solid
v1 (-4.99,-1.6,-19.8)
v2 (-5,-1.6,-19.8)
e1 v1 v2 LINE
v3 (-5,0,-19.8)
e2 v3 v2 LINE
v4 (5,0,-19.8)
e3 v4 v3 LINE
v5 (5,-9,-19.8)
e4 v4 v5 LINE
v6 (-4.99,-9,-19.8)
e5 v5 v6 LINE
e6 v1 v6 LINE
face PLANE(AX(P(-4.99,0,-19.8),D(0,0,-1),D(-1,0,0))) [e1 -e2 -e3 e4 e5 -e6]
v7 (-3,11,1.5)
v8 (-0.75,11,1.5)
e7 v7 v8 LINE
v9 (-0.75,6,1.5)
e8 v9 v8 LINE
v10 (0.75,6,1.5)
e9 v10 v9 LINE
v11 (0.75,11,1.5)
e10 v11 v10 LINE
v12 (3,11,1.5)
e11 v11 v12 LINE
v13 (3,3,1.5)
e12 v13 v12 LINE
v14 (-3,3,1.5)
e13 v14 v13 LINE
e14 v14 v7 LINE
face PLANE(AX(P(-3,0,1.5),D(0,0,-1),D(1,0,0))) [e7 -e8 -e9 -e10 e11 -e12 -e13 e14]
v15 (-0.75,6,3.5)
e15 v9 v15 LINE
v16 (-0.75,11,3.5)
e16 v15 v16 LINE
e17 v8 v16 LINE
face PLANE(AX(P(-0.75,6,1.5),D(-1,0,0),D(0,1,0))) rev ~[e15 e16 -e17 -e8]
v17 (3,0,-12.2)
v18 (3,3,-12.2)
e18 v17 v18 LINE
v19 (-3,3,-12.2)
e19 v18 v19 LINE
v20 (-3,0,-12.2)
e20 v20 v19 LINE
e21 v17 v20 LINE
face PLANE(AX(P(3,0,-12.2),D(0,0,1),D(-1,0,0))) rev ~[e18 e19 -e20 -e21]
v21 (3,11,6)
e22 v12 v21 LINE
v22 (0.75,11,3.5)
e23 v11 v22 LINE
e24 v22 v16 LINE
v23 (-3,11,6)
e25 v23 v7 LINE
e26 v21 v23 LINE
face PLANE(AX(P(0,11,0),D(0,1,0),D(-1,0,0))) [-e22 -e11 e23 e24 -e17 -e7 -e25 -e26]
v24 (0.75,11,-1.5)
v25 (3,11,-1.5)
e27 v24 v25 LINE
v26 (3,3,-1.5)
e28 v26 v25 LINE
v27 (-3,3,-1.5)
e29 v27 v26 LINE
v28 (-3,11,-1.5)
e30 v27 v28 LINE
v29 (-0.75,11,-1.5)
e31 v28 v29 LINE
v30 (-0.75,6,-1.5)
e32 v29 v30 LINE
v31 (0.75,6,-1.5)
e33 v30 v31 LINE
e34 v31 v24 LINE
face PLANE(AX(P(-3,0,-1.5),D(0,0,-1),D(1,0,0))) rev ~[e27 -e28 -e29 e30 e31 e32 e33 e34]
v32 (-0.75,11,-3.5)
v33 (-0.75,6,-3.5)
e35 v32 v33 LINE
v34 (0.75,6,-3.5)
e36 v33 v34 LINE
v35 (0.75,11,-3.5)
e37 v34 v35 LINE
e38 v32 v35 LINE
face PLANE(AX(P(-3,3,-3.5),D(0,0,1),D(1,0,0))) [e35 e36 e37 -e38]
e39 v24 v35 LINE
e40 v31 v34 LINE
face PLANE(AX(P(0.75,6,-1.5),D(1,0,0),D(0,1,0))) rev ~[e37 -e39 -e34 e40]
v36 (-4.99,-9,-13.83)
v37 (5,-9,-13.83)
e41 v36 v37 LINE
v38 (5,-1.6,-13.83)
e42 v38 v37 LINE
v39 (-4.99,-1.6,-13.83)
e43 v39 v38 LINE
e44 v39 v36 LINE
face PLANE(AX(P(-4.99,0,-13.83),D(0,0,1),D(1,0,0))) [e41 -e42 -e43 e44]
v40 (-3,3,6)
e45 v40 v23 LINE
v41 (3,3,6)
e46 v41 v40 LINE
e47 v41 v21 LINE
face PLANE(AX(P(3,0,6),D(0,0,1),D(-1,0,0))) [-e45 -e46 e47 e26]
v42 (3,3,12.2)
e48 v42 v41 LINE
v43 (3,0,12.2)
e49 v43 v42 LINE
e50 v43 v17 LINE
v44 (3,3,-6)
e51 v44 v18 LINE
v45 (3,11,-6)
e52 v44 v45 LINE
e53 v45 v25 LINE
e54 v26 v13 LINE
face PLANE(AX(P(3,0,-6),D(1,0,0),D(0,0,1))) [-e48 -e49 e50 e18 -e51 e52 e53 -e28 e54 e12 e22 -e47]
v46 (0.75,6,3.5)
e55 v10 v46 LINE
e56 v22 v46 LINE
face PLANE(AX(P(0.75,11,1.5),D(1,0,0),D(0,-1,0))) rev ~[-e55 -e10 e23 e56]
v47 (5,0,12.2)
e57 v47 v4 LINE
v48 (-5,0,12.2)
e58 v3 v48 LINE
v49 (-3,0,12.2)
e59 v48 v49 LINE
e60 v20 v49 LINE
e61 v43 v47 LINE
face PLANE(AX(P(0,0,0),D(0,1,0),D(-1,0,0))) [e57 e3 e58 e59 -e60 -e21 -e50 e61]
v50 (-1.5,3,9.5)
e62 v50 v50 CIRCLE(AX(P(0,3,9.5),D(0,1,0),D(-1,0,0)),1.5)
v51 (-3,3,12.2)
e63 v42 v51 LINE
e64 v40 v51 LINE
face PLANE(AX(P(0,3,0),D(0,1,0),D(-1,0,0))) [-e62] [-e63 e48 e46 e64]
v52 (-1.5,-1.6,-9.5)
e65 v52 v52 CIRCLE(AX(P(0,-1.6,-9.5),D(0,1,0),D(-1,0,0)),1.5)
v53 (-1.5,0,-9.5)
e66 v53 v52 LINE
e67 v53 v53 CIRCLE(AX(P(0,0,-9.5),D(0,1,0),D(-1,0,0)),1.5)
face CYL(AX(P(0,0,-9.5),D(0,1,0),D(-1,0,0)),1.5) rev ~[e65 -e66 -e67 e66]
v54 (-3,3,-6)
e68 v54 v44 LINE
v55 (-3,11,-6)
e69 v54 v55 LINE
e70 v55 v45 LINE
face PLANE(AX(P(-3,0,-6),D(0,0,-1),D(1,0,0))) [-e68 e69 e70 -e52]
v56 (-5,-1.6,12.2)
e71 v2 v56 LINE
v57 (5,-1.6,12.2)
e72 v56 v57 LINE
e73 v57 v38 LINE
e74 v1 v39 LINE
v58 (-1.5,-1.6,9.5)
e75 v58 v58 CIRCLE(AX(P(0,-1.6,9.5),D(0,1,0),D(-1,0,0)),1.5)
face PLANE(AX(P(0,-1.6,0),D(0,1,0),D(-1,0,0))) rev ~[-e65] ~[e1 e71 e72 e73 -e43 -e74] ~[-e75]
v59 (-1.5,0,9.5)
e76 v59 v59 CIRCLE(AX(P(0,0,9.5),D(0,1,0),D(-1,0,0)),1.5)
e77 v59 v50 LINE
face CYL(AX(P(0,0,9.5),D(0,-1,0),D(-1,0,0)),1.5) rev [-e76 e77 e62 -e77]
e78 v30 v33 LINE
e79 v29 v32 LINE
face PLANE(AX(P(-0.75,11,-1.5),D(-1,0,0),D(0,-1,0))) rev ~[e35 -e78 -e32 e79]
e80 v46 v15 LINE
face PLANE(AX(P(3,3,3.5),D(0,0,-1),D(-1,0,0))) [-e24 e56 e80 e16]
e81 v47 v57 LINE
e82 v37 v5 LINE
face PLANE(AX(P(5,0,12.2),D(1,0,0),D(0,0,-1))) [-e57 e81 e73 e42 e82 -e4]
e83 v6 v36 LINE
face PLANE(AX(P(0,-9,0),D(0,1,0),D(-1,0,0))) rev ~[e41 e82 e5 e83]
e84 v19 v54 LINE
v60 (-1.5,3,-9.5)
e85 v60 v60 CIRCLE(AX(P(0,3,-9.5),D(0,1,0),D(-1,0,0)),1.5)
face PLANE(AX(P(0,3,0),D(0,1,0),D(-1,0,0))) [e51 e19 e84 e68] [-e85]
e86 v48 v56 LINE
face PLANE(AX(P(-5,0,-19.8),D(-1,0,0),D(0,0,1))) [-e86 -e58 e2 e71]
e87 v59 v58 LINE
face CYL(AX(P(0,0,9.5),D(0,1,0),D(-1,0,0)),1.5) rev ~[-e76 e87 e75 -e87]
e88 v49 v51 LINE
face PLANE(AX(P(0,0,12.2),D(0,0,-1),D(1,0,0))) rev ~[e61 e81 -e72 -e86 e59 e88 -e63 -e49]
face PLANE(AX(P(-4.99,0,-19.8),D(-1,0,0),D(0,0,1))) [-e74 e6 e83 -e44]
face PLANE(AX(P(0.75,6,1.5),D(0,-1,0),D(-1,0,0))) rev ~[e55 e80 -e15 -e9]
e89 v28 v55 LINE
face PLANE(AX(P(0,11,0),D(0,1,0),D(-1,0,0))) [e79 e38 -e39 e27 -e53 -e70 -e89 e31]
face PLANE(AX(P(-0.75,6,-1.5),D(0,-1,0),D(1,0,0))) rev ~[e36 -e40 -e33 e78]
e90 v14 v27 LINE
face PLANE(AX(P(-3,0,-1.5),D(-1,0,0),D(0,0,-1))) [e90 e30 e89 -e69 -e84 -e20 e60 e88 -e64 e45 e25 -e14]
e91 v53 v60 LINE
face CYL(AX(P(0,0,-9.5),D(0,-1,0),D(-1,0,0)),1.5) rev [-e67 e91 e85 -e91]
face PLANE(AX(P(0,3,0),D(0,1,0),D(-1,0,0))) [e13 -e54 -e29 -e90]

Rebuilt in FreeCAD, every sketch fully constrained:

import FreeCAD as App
import Part
import Sketcher

V = App.Vector

doc = App.newDocument("Part")
body = doc.addObject("PartDesign::Body", "Body")

# Sketch on XZ plane
sketch1 = doc.addObject("Sketcher::SketchObject", "Sketch")
body.addObject(sketch1)
sketch1.AttachmentSupport = (doc.XZ_Plane, [""])
sketch1.MapMode = "FlatFace"
sketch1.addGeometry([
    Part.LineSegment(V(5, 12.2, 0), V(5, -19.8, 0)),
    Part.LineSegment(V(5, -19.8, 0), V(-5, -19.8, 0)),
    Part.LineSegment(V(-5, -19.8, 0), V(-5, 12.2, 0)),
    Part.LineSegment(V(-5, 12.2, 0), V(5, 12.2, 0)),
], False)
sketch1.addConstraint([
    Sketcher.Constraint("Coincident", 0, 2, 1, 1),
    Sketcher.Constraint("Coincident", 1, 2, 2, 1),
    Sketcher.Constraint("Coincident", 2, 2, 3, 1),
    Sketcher.Constraint("Coincident", 3, 2, 0, 1),
    Sketcher.Constraint("Vertical", 0),
    Sketcher.Constraint("Horizontal", 1),
    Sketcher.Constraint("Vertical", 2),
    Sketcher.Constraint("Horizontal", 3),
    Sketcher.Constraint("DistanceX", 1, 2, 1, 1, 10.0),
    Sketcher.Constraint("DistanceY", 0, 2, 0, 1, 32.0),
    Sketcher.Constraint("DistanceX", -1, 1, 0, 2, 5.0),
    Sketcher.Constraint("DistanceY", 0, 2, -1, 1, 19.8),
])
pad1 = doc.addObject("PartDesign::Pad", "Pad")
body.addObject(pad1)
pad1.Profile = sketch1
pad1.Length = 1.6

# Sketch on XZ plane
sketch2 = doc.addObject("Sketcher::SketchObject", "Sketch001")
body.addObject(sketch2)
sketch2.AttachmentSupport = (doc.XZ_Plane, [""])
sketch2.MapMode = "FlatFace"
sketch2.addGeometry(Part.Circle(V(0, 9.5, 0), V(0, 0, 1), 1.5), False)
sketch2.addConstraint([
    Sketcher.Constraint("PointOnObject", 0, 3, -2),
    Sketcher.Constraint("Diameter", 0, 3.0),
    Sketcher.Constraint("DistanceY", -1, 1, 0, 3, 9.5),
])
pocket1 = doc.addObject("PartDesign::Pocket", "Pocket")
body.addObject(pocket1)
pocket1.Profile = sketch2
pocket1.Length = 10
pocket1.Midplane = True

# Sketch on XZ plane
sketch3 = doc.addObject("Sketcher::SketchObject", "Sketch002")
body.addObject(sketch3)
sketch3.AttachmentSupport = (doc.XZ_Plane, [""])
sketch3.MapMode = "FlatFace"
sketch3.addGeometry(Part.Circle(V(0, -9.5, 0), V(0, 0, 1), 1.5), False)
sketch3.addConstraint([
    Sketcher.Constraint("PointOnObject", 0, 3, -2),
    Sketcher.Constraint("Diameter", 0, 3.0),
    Sketcher.Constraint("DistanceY", 0, 3, -1, 1, 9.5),
])
pocket2 = doc.addObject("PartDesign::Pocket", "Pocket001")
body.addObject(pocket2)
pocket2.Profile = sketch3
pocket2.Length = 10
pocket2.Midplane = True

# Sketch on XZ plane
sketch4 = doc.addObject("Sketcher::SketchObject", "Sketch003")
body.addObject(sketch4)
sketch4.AttachmentSupport = (doc.XZ_Plane, [""])
sketch4.MapMode = "FlatFace"
sketch4.addGeometry([
    Part.LineSegment(V(3, 12.2, 0), V(3, 6, 0)),  # 0
    Part.LineSegment(V(3, 6, 0), V(-3, 6, 0)),  # 1
    Part.LineSegment(V(-3, 6, 0), V(-3, 12.2, 0)),  # 2
    Part.LineSegment(V(-3, 12.2, 0), V(3, 12.2, 0)),  # 3
    Part.Circle(V(0, 9.5, 0), V(0, 0, 1), 1.5),  # 4
], False)
sketch4.addConstraint([
    Sketcher.Constraint("Coincident", 0, 2, 1, 1),
    Sketcher.Constraint("Coincident", 1, 2, 2, 1),
    Sketcher.Constraint("Coincident", 2, 2, 3, 1),
    Sketcher.Constraint("Coincident", 3, 2, 0, 1),
    Sketcher.Constraint("Vertical", 0),
    Sketcher.Constraint("Horizontal", 1),
    Sketcher.Constraint("Vertical", 2),
    Sketcher.Constraint("Horizontal", 3),
    Sketcher.Constraint("PointOnObject", 4, 3, -2),
    Sketcher.Constraint("Diameter", 4, 3.0),
    Sketcher.Constraint("DistanceX", 1, 2, 1, 1, 6.0),
    Sketcher.Constraint("DistanceX", -1, 1, 0, 2, 3.0),
    Sketcher.Constraint("DistanceY", -1, 1, 0, 2, 6.0),
    Sketcher.Constraint("DistanceY", 0, 2, 4, 3, 3.5),
    Sketcher.Constraint("DistanceY", 0, 2, 0, 1, 6.2),
])
pad2 = doc.addObject("PartDesign::Pad", "Pad001")
body.addObject(pad2)
pad2.Profile = sketch4
pad2.Length = 3
pad2.Reversed = True

# Sketch on XZ plane
sketch5 = doc.addObject("Sketcher::SketchObject", "Sketch004")
body.addObject(sketch5)
sketch5.AttachmentSupport = (doc.XZ_Plane, [""])
sketch5.MapMode = "FlatFace"
sketch5.addGeometry([
    Part.LineSegment(V(-3, -6, 0), V(3, -6, 0)),  # 0
    Part.LineSegment(V(3, -6, 0), V(3, -12.2, 0)),  # 1
    Part.LineSegment(V(3, -12.2, 0), V(-3, -12.2, 0)),  # 2
    Part.LineSegment(V(-3, -12.2, 0), V(-3, -6, 0)),  # 3
    Part.Circle(V(0, -9.5, 0), V(0, 0, 1), 1.5),  # 4
], False)
sketch5.addConstraint([
    Sketcher.Constraint("Coincident", 0, 2, 1, 1),
    Sketcher.Constraint("Coincident", 1, 2, 2, 1),
    Sketcher.Constraint("Coincident", 2, 2, 3, 1),
    Sketcher.Constraint("Coincident", 3, 2, 0, 1),
    Sketcher.Constraint("Horizontal", 0),
    Sketcher.Constraint("Vertical", 1),
    Sketcher.Constraint("Horizontal", 2),
    Sketcher.Constraint("Vertical", 3),
    Sketcher.Constraint("PointOnObject", 4, 3, -2),
    Sketcher.Constraint("Diameter", 4, 3.0),
    Sketcher.Constraint("DistanceX", 0, 1, 0, 2, 6.0),
    Sketcher.Constraint("DistanceX", -1, 1, 0, 2, 3.0),
    Sketcher.Constraint("DistanceY", 0, 2, -1, 1, 6.0),
    Sketcher.Constraint("DistanceY", 4, 3, 0, 2, 3.5),
    Sketcher.Constraint("DistanceY", 1, 2, 1, 1, 6.2),
])
pad3 = doc.addObject("PartDesign::Pad", "Pad002")
body.addObject(pad3)
pad3.Profile = sketch5
pad3.Length = 3
pad3.Reversed = True

# Sketch on XZ plane
sketch6 = doc.addObject("Sketcher::SketchObject", "Sketch005")
body.addObject(sketch6)
sketch6.AttachmentSupport = (doc.XZ_Plane, [""])
sketch6.MapMode = "FlatFace"
sketch6.addGeometry([
    Part.LineSegment(V(-4.99, -13.83, 0), V(5, -13.83, 0)),
    Part.LineSegment(V(5, -13.83, 0), V(5, -19.8, 0)),
    Part.LineSegment(V(5, -19.8, 0), V(-4.99, -19.8, 0)),
    Part.LineSegment(V(-4.99, -19.8, 0), V(-4.99, -13.83, 0)),
], False)
sketch6.addConstraint([
    Sketcher.Constraint("Coincident", 0, 2, 1, 1),
    Sketcher.Constraint("Coincident", 1, 2, 2, 1),
    Sketcher.Constraint("Coincident", 2, 2, 3, 1),
    Sketcher.Constraint("Coincident", 3, 2, 0, 1),
    Sketcher.Constraint("Horizontal", 0),
    Sketcher.Constraint("Vertical", 1),
    Sketcher.Constraint("Horizontal", 2),
    Sketcher.Constraint("Vertical", 3),
    Sketcher.Constraint("DistanceX", -1, 1, 0, 2, 5.0),
    Sketcher.Constraint("DistanceX", 0, 1, 0, 2, 9.99),
    Sketcher.Constraint("DistanceY", 1, 2, 1, 1, 5.97),
    Sketcher.Constraint("DistanceY", 1, 2, -1, 1, 19.8),
])
pad4 = doc.addObject("PartDesign::Pad", "Pad003")
body.addObject(pad4)
pad4.Profile = sketch6
pad4.Length = 9

# Sketch on XZ plane
sketch7 = doc.addObject("Sketcher::SketchObject", "Sketch006")
body.addObject(sketch7)
sketch7.AttachmentSupport = (doc.XZ_Plane, [""])
sketch7.MapMode = "FlatFace"
sketch7.addGeometry([
    Part.LineSegment(V(-3, 1.5, 0), V(3, 1.5, 0)),
    Part.LineSegment(V(3, 1.5, 0), V(3, -1.5, 0)),
    Part.LineSegment(V(3, -1.5, 0), V(-3, -1.5, 0)),
    Part.LineSegment(V(-3, -1.5, 0), V(-3, 1.5, 0)),
], False)
sketch7.addConstraint([
    Sketcher.Constraint("Coincident", 0, 2, 1, 1),
    Sketcher.Constraint("Coincident", 1, 2, 2, 1),
    Sketcher.Constraint("Coincident", 2, 2, 3, 1),
    Sketcher.Constraint("Coincident", 3, 2, 0, 1),
    Sketcher.Constraint("Horizontal", 0),
    Sketcher.Constraint("Vertical", 1),
    Sketcher.Constraint("Horizontal", 2),
    Sketcher.Constraint("Vertical", 3),
    Sketcher.Constraint("Symmetric", 0, 2, 2, 2, -1, 1),
    Sketcher.Constraint("DistanceX", 0, 1, 0, 2, 6.0),
    Sketcher.Constraint("DistanceY", 1, 2, 1, 1, 3.0),
])
pad5 = doc.addObject("PartDesign::Pad", "Pad004")
body.addObject(pad5)
pad5.Profile = sketch7
pad5.Length = 3
pad5.Reversed = True

# Sketch on XZ plane
sketch8 = doc.addObject("Sketcher::SketchObject", "Sketch007")
body.addObject(sketch8)
sketch8.AttachmentSupport = (doc.XZ_Plane, [""])
sketch8.MapMode = "FlatFace"
sketch8.addGeometry([
    Part.LineSegment(V(-3, 6, 0), V(3, 6, 0)),
    Part.LineSegment(V(3, 6, 0), V(3, 1.5, 0)),
    Part.LineSegment(V(3, 1.5, 0), V(-3, 1.5, 0)),
    Part.LineSegment(V(-3, 1.5, 0), V(-3, 6, 0)),
], False)
sketch8.addConstraint([
    Sketcher.Constraint("Coincident", 0, 2, 1, 1),
    Sketcher.Constraint("Coincident", 1, 2, 2, 1),
    Sketcher.Constraint("Coincident", 2, 2, 3, 1),
    Sketcher.Constraint("Coincident", 3, 2, 0, 1),
    Sketcher.Constraint("Horizontal", 0),
    Sketcher.Constraint("Vertical", 1),
    Sketcher.Constraint("Horizontal", 2),
    Sketcher.Constraint("Vertical", 3),
    Sketcher.Constraint("DistanceX", 0, 1, 0, 2, 6.0),
    Sketcher.Constraint("DistanceY", 1, 2, 1, 1, 4.5),
    Sketcher.Constraint("DistanceX", -1, 1, 0, 2, 3.0),
    Sketcher.Constraint("DistanceY", -1, 1, 0, 2, 6.0),
])
pad6 = doc.addObject("PartDesign::Pad", "Pad005")
body.addObject(pad6)
pad6.Profile = sketch8
pad6.Length = 11
pad6.Reversed = True

# Sketch on XZ plane
sketch9 = doc.addObject("Sketcher::SketchObject", "Sketch008")
body.addObject(sketch9)
sketch9.AttachmentSupport = (doc.XZ_Plane, [""])
sketch9.MapMode = "FlatFace"
sketch9.addGeometry([
    Part.LineSegment(V(-3, -1.5, 0), V(3, -1.5, 0)),
    Part.LineSegment(V(3, -1.5, 0), V(3, -6, 0)),
    Part.LineSegment(V(3, -6, 0), V(-3, -6, 0)),
    Part.LineSegment(V(-3, -6, 0), V(-3, -1.5, 0)),
], False)
sketch9.addConstraint([
    Sketcher.Constraint("Coincident", 0, 2, 1, 1),
    Sketcher.Constraint("Coincident", 1, 2, 2, 1),
    Sketcher.Constraint("Coincident", 2, 2, 3, 1),
    Sketcher.Constraint("Coincident", 3, 2, 0, 1),
    Sketcher.Constraint("Horizontal", 0),
    Sketcher.Constraint("Vertical", 1),
    Sketcher.Constraint("Horizontal", 2),
    Sketcher.Constraint("Vertical", 3),
    Sketcher.Constraint("DistanceX", 0, 1, 0, 2, 6.0),
    Sketcher.Constraint("DistanceY", 1, 2, 1, 1, 4.5),
    Sketcher.Constraint("DistanceX", -1, 1, 0, 2, 3.0),
    Sketcher.Constraint("DistanceY", 1, 2, -1, 1, 6.0),
])
pad7 = doc.addObject("PartDesign::Pad", "Pad006")
body.addObject(pad7)
pad7.Profile = sketch9
pad7.Length = 11
pad7.Reversed = True

# Sketch on XY plane
sketch10 = doc.addObject("Sketcher::SketchObject", "Sketch009")
body.addObject(sketch10)
sketch10.AttachmentSupport = (doc.XY_Plane, [""])
sketch10.MapMode = "FlatFace"
sketch10.AttachmentOffset = App.Placement(V(0, 0, -1.5), App.Rotation())
sketch10.addGeometry([
    Part.LineSegment(V(0.75, 11, 0), V(-0.75, 11, 0)),
    Part.LineSegment(V(-0.75, 11, 0), V(-0.75, 6, 0)),
    Part.LineSegment(V(-0.75, 6, 0), V(0.75, 6, 0)),
    Part.LineSegment(V(0.75, 6, 0), V(0.75, 11, 0)),
], False)
sketch10.addConstraint([
    Sketcher.Constraint("Coincident", 0, 2, 1, 1),
    Sketcher.Constraint("Coincident", 1, 2, 2, 1),
    Sketcher.Constraint("Coincident", 2, 2, 3, 1),
    Sketcher.Constraint("Coincident", 3, 2, 0, 1),
    Sketcher.Constraint("Horizontal", 0),
    Sketcher.Constraint("Vertical", 1),
    Sketcher.Constraint("Horizontal", 2),
    Sketcher.Constraint("Vertical", 3),
    Sketcher.Constraint("DistanceY", 1, 2, 1, 1, 5.0),
    Sketcher.Constraint("DistanceX", 0, 2, 0, 1, 1.5),
    Sketcher.Constraint("DistanceY", -1, 1, 0, 2, 11.0),
    Sketcher.Constraint("DistanceX", 0, 2, -1, 1, 0.75),
])
pocket3 = doc.addObject("PartDesign::Pocket", "Pocket002")
body.addObject(pocket3)
pocket3.Profile = sketch10
pocket3.Length = 2

# Sketch on XY plane
sketch11 = doc.addObject("Sketcher::SketchObject", "Sketch010")
body.addObject(sketch11)
sketch11.AttachmentSupport = (doc.XY_Plane, [""])
sketch11.MapMode = "FlatFace"
sketch11.AttachmentOffset = App.Placement(V(0, 0, 1.5), App.Rotation())
sketch11.addGeometry([
    Part.LineSegment(V(-0.75, 11, 0), V(0.75, 11, 0)),
    Part.LineSegment(V(0.75, 11, 0), V(0.75, 6, 0)),
    Part.LineSegment(V(0.75, 6, 0), V(-0.75, 6, 0)),
    Part.LineSegment(V(-0.75, 6, 0), V(-0.75, 11, 0)),
], False)
sketch11.addConstraint([
    Sketcher.Constraint("Coincident", 0, 2, 1, 1),
    Sketcher.Constraint("Coincident", 1, 2, 2, 1),
    Sketcher.Constraint("Coincident", 2, 2, 3, 1),
    Sketcher.Constraint("Coincident", 3, 2, 0, 1),
    Sketcher.Constraint("Horizontal", 0),
    Sketcher.Constraint("Vertical", 1),
    Sketcher.Constraint("Horizontal", 2),
    Sketcher.Constraint("Vertical", 3),
    Sketcher.Constraint("DistanceY", 1, 2, 1, 1, 5.0),
    Sketcher.Constraint("DistanceX", 0, 1, 0, 2, 1.5),
    Sketcher.Constraint("DistanceY", -1, 1, 0, 2, 11.0),
    Sketcher.Constraint("DistanceX", -1, 1, 0, 2, 0.75),
])
pocket4 = doc.addObject("PartDesign::Pocket", "Pocket003")
body.addObject(pocket4)
pocket4.Profile = sketch11
pocket4.Length = 2
pocket4.Reversed = True

doc.recompute()
